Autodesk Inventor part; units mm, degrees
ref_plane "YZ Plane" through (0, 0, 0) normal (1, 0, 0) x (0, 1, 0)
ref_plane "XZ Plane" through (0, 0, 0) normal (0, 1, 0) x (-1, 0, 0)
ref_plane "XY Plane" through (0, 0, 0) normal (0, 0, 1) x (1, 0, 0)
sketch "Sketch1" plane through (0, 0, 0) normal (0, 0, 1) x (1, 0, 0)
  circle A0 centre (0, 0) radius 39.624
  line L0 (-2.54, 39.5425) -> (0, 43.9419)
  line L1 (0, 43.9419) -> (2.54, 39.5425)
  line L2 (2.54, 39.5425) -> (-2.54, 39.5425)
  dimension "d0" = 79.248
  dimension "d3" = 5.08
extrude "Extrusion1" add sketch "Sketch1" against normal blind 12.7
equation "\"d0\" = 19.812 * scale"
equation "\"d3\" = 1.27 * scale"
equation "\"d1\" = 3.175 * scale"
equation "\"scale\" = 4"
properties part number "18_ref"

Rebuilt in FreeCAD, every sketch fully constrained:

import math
import FreeCAD as App
import Part
import Sketcher
Q = App.Units.Quantity

doc = App.newDocument("Part")
params = doc.addObject("Spreadsheet::Sheet", "Params")
for row, (alias, value) in enumerate([
    ("sketch1_radius", "1.56 in"),
    ("sketch1_length", "0.2 in"),
    ("pad1_length", "0.5 in"),
], start=1):
    params.set(f"A{row}", alias)
    params.set(f"B{row}", "=" + value)
    params.setAlias(f"B{row}", alias)

body = doc.addObject("PartDesign::Body", "Body")

# Sketch on XY plane
sketch1 = body.newObject("Sketcher::SketchObject", "Sketch")
sketch1.AttachmentSupport = (doc.getObject("XY_Plane"), [""])
sketch1.MapMode = "FlatFace"
sketch1.addGeometry([
    Part.ArcOfCircle(Part.Circle(App.Vector(0, 0, 0), App.Vector(0, 0, 1), 40), math.radians(94), math.radians(446)),
    Part.LineSegment(App.Vector(3, 40, 0), App.Vector(0, 44, 0)),
    Part.LineSegment(App.Vector(0, 44, 0), App.Vector(-3, 40, 0)),
], False)
sketch1.addConstraint([
    Sketcher.Constraint("Coincident", 0, 2, 1, 1),
    Sketcher.Constraint("Coincident", 1, 2, 2, 1),
    Sketcher.Constraint("Coincident", 2, 2, 0, 1),
    Sketcher.Constraint("Coincident", 0, 3, -1, 1),
    Sketcher.Constraint("PointOnObject", 1, 2, -2),
    Sketcher.Constraint("Horizontal", 0, 2, 2, 2),
    Sketcher.Constraint("Radius", 0, Q("1.56 in")),
    Sketcher.Constraint("Distance", 1, Q("0.2 in")),
    Sketcher.Constraint("DistanceX", 2, 2, 0, 2, Q("0.2 in")),
])
sketch1.setExpression("Constraints[6]", "Params.sketch1_radius")
sketch1.setExpression("Constraints[7]", "Params.sketch1_length")
pad1 = body.newObject("PartDesign::Pad", "Pad")
pad1.Profile = sketch1
pad1.setExpression("Length", "Params.pad1_length")
pad1.Reversed = True

doc.recompute()
